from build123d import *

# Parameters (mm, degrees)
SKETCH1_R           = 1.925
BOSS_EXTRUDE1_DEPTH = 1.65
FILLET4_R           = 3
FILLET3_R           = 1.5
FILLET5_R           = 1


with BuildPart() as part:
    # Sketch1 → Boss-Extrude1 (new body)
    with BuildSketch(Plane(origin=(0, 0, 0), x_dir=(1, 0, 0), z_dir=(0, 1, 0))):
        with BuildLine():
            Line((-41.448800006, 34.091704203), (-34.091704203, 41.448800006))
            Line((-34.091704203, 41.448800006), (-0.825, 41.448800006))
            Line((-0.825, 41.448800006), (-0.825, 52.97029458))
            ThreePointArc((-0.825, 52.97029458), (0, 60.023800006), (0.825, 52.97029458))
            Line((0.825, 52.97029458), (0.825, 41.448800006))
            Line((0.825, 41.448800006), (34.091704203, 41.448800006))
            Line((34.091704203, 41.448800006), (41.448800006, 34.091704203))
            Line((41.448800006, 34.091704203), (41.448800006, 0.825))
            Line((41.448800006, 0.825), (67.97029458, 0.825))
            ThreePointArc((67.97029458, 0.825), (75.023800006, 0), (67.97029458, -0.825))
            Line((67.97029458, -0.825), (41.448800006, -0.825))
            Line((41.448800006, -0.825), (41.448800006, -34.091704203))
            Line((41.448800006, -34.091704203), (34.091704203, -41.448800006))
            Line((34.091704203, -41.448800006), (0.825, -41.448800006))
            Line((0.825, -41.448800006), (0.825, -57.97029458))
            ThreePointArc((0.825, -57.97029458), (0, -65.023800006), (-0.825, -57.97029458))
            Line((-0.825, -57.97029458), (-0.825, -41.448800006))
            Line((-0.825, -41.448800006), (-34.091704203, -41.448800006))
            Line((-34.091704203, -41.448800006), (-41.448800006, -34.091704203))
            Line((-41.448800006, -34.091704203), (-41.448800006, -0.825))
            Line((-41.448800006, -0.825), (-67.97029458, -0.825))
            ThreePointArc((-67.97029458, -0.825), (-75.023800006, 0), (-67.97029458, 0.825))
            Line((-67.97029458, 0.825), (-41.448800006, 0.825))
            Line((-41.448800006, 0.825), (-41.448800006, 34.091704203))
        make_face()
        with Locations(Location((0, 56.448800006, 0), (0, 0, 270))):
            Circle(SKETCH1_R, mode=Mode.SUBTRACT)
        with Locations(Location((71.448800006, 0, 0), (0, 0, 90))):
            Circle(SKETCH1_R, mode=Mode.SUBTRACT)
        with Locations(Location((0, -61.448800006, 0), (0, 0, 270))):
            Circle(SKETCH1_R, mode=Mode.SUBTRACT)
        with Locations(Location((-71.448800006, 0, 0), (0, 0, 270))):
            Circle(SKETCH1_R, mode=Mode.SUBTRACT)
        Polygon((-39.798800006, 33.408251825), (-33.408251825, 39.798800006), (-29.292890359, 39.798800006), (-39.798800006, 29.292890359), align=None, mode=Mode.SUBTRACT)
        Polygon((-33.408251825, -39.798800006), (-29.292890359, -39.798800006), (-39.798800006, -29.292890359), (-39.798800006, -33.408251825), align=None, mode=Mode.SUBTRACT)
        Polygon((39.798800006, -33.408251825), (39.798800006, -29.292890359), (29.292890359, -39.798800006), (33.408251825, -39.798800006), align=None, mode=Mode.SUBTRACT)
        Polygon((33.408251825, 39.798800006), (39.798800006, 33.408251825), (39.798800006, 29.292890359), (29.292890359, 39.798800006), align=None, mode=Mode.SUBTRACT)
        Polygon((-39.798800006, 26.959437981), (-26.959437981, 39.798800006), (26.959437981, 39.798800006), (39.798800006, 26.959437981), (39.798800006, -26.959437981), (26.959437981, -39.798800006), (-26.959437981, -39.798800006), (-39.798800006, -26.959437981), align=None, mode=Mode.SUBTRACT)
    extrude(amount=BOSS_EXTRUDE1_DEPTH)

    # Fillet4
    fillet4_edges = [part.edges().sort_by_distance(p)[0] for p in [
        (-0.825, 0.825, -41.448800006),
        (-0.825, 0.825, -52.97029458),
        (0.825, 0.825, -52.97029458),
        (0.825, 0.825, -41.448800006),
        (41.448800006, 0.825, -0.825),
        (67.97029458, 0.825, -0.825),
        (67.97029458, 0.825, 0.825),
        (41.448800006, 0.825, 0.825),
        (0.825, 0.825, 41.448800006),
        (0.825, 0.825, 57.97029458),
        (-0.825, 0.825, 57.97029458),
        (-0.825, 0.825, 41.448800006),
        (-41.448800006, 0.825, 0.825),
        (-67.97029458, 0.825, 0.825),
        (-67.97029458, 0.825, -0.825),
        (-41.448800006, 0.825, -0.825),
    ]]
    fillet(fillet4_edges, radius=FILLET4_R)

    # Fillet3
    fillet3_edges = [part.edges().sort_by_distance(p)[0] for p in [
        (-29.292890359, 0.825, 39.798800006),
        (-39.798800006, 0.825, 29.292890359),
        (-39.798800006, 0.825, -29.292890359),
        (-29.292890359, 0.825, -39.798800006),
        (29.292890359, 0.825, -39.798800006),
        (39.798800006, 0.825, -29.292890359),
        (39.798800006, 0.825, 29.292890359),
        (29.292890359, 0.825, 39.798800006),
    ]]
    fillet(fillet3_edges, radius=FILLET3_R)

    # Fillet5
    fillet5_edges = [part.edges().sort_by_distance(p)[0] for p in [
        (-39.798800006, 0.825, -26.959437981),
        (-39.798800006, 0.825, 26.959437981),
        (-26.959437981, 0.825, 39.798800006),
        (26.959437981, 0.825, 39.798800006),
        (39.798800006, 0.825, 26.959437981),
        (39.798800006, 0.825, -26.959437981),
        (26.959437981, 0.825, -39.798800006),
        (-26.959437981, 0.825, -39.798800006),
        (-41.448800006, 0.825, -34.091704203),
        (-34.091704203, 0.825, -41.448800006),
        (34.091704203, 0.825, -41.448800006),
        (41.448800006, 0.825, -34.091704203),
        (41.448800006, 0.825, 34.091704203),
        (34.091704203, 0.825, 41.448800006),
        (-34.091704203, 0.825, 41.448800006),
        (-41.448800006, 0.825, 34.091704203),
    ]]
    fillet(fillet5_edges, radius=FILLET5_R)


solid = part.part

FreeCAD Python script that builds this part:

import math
import FreeCAD as App
import Part
import Sketcher


def edges_at(feature, points):
    """Names of the edges that pass closest to the given points."""
    edges = feature.Shape.Edges
    near = lambda p: min(range(len(edges)), key=lambda i: edges[i].distToShape(Part.Vertex(*p))[0])
    return sorted({f"Edge{near(p) + 1}" for p in points})

doc = App.newDocument("Part")
params = doc.addObject("Spreadsheet::Sheet", "Params")
for row, (alias, value) in enumerate([
    ("sketch1_diameter", "3.85 mm"),
    ("pad1_length", "1.65 mm"),
    ("fillet_radius", "3 mm"),
    ("fillet2_radius", "1.5 mm"),
    ("fillet3_radius", "1 mm"),
], start=1):
    params.set(f"A{row}", alias)
    params.set(f"B{row}", "=" + value)
    params.setAlias(f"B{row}", alias)

body = doc.addObject("PartDesign::Body", "Body")

# Sketch on XZ plane
sketch1 = body.newObject("Sketcher::SketchObject", "Sketch")
sketch1.AttachmentSupport = (doc.getObject("XZ_Plane"), [""])
sketch1.MapMode = "FlatFace"
sketch1.addGeometry(Part.LineSegment(App.Vector(-34.091704, -41.4488, 0), App.Vector(-41.4488, -34.091704, 0)), False)
sketch1.addGeometry(Part.LineSegment(App.Vector(-41.4488, -34.091704, 0), App.Vector(-41.4488, -0.825, 0)), False)
sketch1.addGeometry(Part.LineSegment(App.Vector(-41.4488, -0.825, 0), App.Vector(-67.970295, -0.825, 0)), False)
sketch1.addGeometry(Part.ArcOfCircle(Part.Circle(App.Vector(-71.4488, 0, 0), App.Vector(0, 0, 1), 3.575), math.radians(13.342364), math.radians(346.657636)), False)
sketch1.addGeometry(Part.LineSegment(App.Vector(-67.970295, 0.825, 0), App.Vector(-41.4488, 0.825, 0)), False)
sketch1.addGeometry(Part.LineSegment(App.Vector(-41.4488, 0.825, 0), App.Vector(-41.4488, 34.091704, 0)), False)
sketch1.addGeometry(Part.LineSegment(App.Vector(-41.4488, 34.091704, 0), App.Vector(-34.091704, 41.4488, 0)), False)
sketch1.addGeometry(Part.LineSegment(App.Vector(-34.091704, 41.4488, 0), App.Vector(-0.825, 41.4488, 0)), False)
sketch1.addGeometry(Part.LineSegment(App.Vector(-0.825, 41.4488, 0), App.Vector(-0.825, 57.970295, 0)), False)
sketch1.addGeometry(Part.ArcOfCircle(Part.Circle(App.Vector(0, 61.4488, 0), App.Vector(0, 0, 1), 3.575), math.radians(-76.657636), math.radians(256.657636)), False)
sketch1.addGeometry(Part.LineSegment(App.Vector(0.825, 57.970295, 0), App.Vector(0.825, 41.4488, 0)), False)
sketch1.addGeometry(Part.LineSegment(App.Vector(0.825, 41.4488, 0), App.Vector(34.091704, 41.4488, 0)), False)
sketch1.addGeometry(Part.LineSegment(App.Vector(34.091704, 41.4488, 0), App.Vector(41.4488, 34.091704, 0)), False)
sketch1.addGeometry(Part.LineSegment(App.Vector(41.4488, 34.091704, 0), App.Vector(41.4488, 0.825, 0)), False)
sketch1.addGeometry(Part.LineSegment(App.Vector(41.4488, 0.825, 0), App.Vector(67.970295, 0.825, 0)), False)
sketch1.addGeometry(Part.ArcOfCircle(Part.Circle(App.Vector(71.4488, 0, 0), App.Vector(0, 0, 1), 3.575), math.radians(-166.657636), math.radians(166.657636)), False)
sketch1.addGeometry(Part.LineSegment(App.Vector(67.970295, -0.825, 0), App.Vector(41.4488, -0.825, 0)), False)
sketch1.addGeometry(Part.LineSegment(App.Vector(41.4488, -0.825, 0), App.Vector(41.4488, -34.091704, 0)), False)
sketch1.addGeometry(Part.LineSegment(App.Vector(41.4488, -34.091704, 0), App.Vector(34.091704, -41.4488, 0)), False)
sketch1.addGeometry(Part.LineSegment(App.Vector(34.091704, -41.4488, 0), App.Vector(0.825, -41.4488, 0)), False)
sketch1.addGeometry(Part.LineSegment(App.Vector(0.825, -41.4488, 0), App.Vector(0.825, -52.970295, 0)), False)
sketch1.addGeometry(Part.ArcOfCircle(Part.Circle(App.Vector(0, -56.4488, 0), App.Vector(0, 0, 1), 3.575), math.radians(103.342364), math.radians(436.657636)), False)
sketch1.addGeometry(Part.LineSegment(App.Vector(-0.825, -52.970295, 0), App.Vector(-0.825, -41.4488, 0)), False)
sketch1.addGeometry(Part.LineSegment(App.Vector(-0.825, -41.4488, 0), App.Vector(-34.091704, -41.4488, 0)), False)
sketch1.addGeometry(Part.Circle(App.Vector(0, 61.4488, 0), App.Vector(0, 0, 1), 1.925), False)
sketch1.addGeometry(Part.LineSegment(App.Vector(39.7988, 33.408252, 0), App.Vector(33.408252, 39.7988, 0)), False)
sketch1.addGeometry(Part.LineSegment(App.Vector(33.408252, 39.7988, 0), App.Vector(29.29289, 39.7988, 0)), False)
sketch1.addGeometry(Part.LineSegment(App.Vector(29.29289, 39.7988, 0), App.Vector(39.7988, 29.29289, 0)), False)
sketch1.addGeometry(Part.LineSegment(App.Vector(39.7988, 29.29289, 0), App.Vector(39.7988, 33.408252, 0)), False)
sketch1.addGeometry(Part.LineSegment(App.Vector(-33.408252, 39.7988, 0), App.Vector(-39.7988, 33.408252, 0)), False)
sketch1.addGeometry(Part.LineSegment(App.Vector(-39.7988, 33.408252, 0), App.Vector(-39.7988, 29.29289, 0)), False)
sketch1.addGeometry(Part.LineSegment(App.Vector(-39.7988, 29.29289, 0), App.Vector(-29.29289, 39.7988, 0)), False)
sketch1.addGeometry(Part.LineSegment(App.Vector(-29.29289, 39.7988, 0), App.Vector(-33.408252, 39.7988, 0)), False)
sketch1.addGeometry(Part.Circle(App.Vector(71.4488, 0, 0), App.Vector(0, 0, 1), 1.925), False)
sketch1.addGeometry(Part.LineSegment(App.Vector(-39.7988, -26.959438, 0), App.Vector(-26.959438, -39.7988, 0)), False)
sketch1.addGeometry(Part.LineSegment(App.Vector(-26.959438, -39.7988, 0), App.Vector(26.959438, -39.7988, 0)), False)
sketch1.addGeometry(Part.LineSegment(App.Vector(26.959438, -39.7988, 0), App.Vector(39.7988, -26.959438, 0)), False)
sketch1.addGeometry(Part.LineSegment(App.Vector(39.7988, -26.959438, 0), App.Vector(39.7988, 26.959438, 0)), False)
sketch1.addGeometry(Part.LineSegment(App.Vector(39.7988, 26.959438, 0), App.Vector(26.959438, 39.7988, 0)), False)
sketch1.addGeometry(Part.LineSegment(App.Vector(26.959438, 39.7988, 0), App.Vector(-26.959438, 39.7988, 0)), False)
sketch1.addGeometry(Part.LineSegment(App.Vector(-26.959438, 39.7988, 0), App.Vector(-39.7988, 26.959438, 0)), False)
sketch1.addGeometry(Part.LineSegment(App.Vector(-39.7988, 26.959438, 0), App.Vector(-39.7988, -26.959438, 0)), False)
sketch1.addGeometry(Part.LineSegment(App.Vector(33.408252, -39.7988, 0), App.Vector(39.7988, -33.408252, 0)), False)
sketch1.addGeometry(Part.LineSegment(App.Vector(39.7988, -33.408252, 0), App.Vector(39.7988, -29.29289, 0)), False)
sketch1.addGeometry(Part.LineSegment(App.Vector(39.7988, -29.29289, 0), App.Vector(29.29289, -39.7988, 0)), False)
sketch1.addGeometry(Part.LineSegment(App.Vector(29.29289, -39.7988, 0), App.Vector(33.408252, -39.7988, 0)), False)
sketch1.addGeometry(Part.Circle(App.Vector(0, -56.4488, 0), App.Vector(0, 0, 1), 1.925), False)
sketch1.addGeometry(Part.Circle(App.Vector(-71.4488, 0, 0), App.Vector(0, 0, 1), 1.925), False)
sketch1.addGeometry(Part.LineSegment(App.Vector(-39.7988, -33.408252, 0), App.Vector(-33.408252, -39.7988, 0)), False)
sketch1.addGeometry(Part.LineSegment(App.Vector(-33.408252, -39.7988, 0), App.Vector(-29.29289, -39.7988, 0)), False)
sketch1.addGeometry(Part.LineSegment(App.Vector(-29.29289, -39.7988, 0), App.Vector(-39.7988, -29.29289, 0)), False)
sketch1.addGeometry(Part.LineSegment(App.Vector(-39.7988, -29.29289, 0), App.Vector(-39.7988, -33.408252, 0)), False)
sketch1.addConstraint(Sketcher.Constraint("Coincident", 0, 2, 1, 1))
sketch1.addConstraint(Sketcher.Constraint("Coincident", 1, 2, 2, 1))
sketch1.addConstraint(Sketcher.Constraint("Coincident", 2, 2, 3, 2))
sketch1.addConstraint(Sketcher.Constraint("Coincident", 3, 1, 4, 1))
sketch1.addConstraint(Sketcher.Constraint("Coincident", 4, 2, 5, 1))
sketch1.addConstraint(Sketcher.Constraint("Coincident", 5, 2, 6, 1))
sketch1.addConstraint(Sketcher.Constraint("Coincident", 6, 2, 7, 1))
sketch1.addConstraint(Sketcher.Constraint("Coincident", 7, 2, 8, 1))
sketch1.addConstraint(Sketcher.Constraint("Coincident", 8, 2, 9, 2))
sketch1.addConstraint(Sketcher.Constraint("Coincident", 9, 1, 10, 1))
sketch1.addConstraint(Sketcher.Constraint("Coincident", 10, 2, 11, 1))
sketch1.addConstraint(Sketcher.Constraint("Coincident", 11, 2, 12, 1))
sketch1.addConstraint(Sketcher.Constraint("Coincident", 12, 2, 13, 1))
sketch1.addConstraint(Sketcher.Constraint("Coincident", 13, 2, 14, 1))
sketch1.addConstraint(Sketcher.Constraint("Coincident", 14, 2, 15, 2))
sketch1.addConstraint(Sketcher.Constraint("Coincident", 15, 1, 16, 1))
sketch1.addConstraint(Sketcher.Constraint("Coincident", 16, 2, 17, 1))
sketch1.addConstraint(Sketcher.Constraint("Coincident", 17, 2, 18, 1))
sketch1.addConstraint(Sketcher.Constraint("Coincident", 18, 2, 19, 1))
sketch1.addConstraint(Sketcher.Constraint("Coincident", 19, 2, 20, 1))
sketch1.addConstraint(Sketcher.Constraint("Coincident", 20, 2, 21, 2))
sketch1.addConstraint(Sketcher.Constraint("Coincident", 21, 1, 22, 1))
sketch1.addConstraint(Sketcher.Constraint("Coincident", 22, 2, 23, 1))
sketch1.addConstraint(Sketcher.Constraint("Coincident", 23, 2, 0, 1))
sketch1.addConstraint(Sketcher.Constraint("Coincident", 25, 2, 26, 1))
sketch1.addConstraint(Sketcher.Constraint("Coincident", 26, 2, 27, 1))
sketch1.addConstraint(Sketcher.Constraint("Coincident", 27, 2, 28, 1))
sketch1.addConstraint(Sketcher.Constraint("Coincident", 28, 2, 25, 1))
sketch1.addConstraint(Sketcher.Constraint("Coincident", 29, 2, 30, 1))
sketch1.addConstraint(Sketcher.Constraint("Coincident", 30, 2, 31, 1))
sketch1.addConstraint(Sketcher.Constraint("Coincident", 31, 2, 32, 1))
sketch1.addConstraint(Sketcher.Constraint("Coincident", 32, 2, 29, 1))
sketch1.addConstraint(Sketcher.Constraint("Coincident", 34, 2, 35, 1))
sketch1.addConstraint(Sketcher.Constraint("Coincident", 35, 2, 36, 1))
sketch1.addConstraint(Sketcher.Constraint("Coincident", 36, 2, 37, 1))
sketch1.addConstraint(Sketcher.Constraint("Coincident", 37, 2, 38, 1))
sketch1.addConstraint(Sketcher.Constraint("Coincident", 38, 2, 39, 1))
sketch1.addConstraint(Sketcher.Constraint("Coincident", 39, 2, 40, 1))
sketch1.addConstraint(Sketcher.Constraint("Coincident", 40, 2, 41, 1))
sketch1.addConstraint(Sketcher.Constraint("Coincident", 41, 2, 34, 1))
sketch1.addConstraint(Sketcher.Constraint("Coincident", 42, 2, 43, 1))
sketch1.addConstraint(Sketcher.Constraint("Coincident", 43, 2, 44, 1))
sketch1.addConstraint(Sketcher.Constraint("Coincident", 44, 2, 45, 1))
sketch1.addConstraint(Sketcher.Constraint("Coincident", 45, 2, 42, 1))
sketch1.addConstraint(Sketcher.Constraint("Coincident", 48, 2, 49, 1))
sketch1.addConstraint(Sketcher.Constraint("Coincident", 49, 2, 50, 1))
sketch1.addConstraint(Sketcher.Constraint("Coincident", 50, 2, 51, 1))
sketch1.addConstraint(Sketcher.Constraint("Coincident", 51, 2, 48, 1))
sketch1.addConstraint(Sketcher.Constraint("Vertical", 1))
sketch1.addConstraint(Sketcher.Constraint("Horizontal", 2))
sketch1.addConstraint(Sketcher.Constraint("Horizontal", 4))
sketch1.addConstraint(Sketcher.Constraint("Vertical", 5))
sketch1.addConstraint(Sketcher.Constraint("Horizontal", 7))
sketch1.addConstraint(Sketcher.Constraint("Vertical", 8))
sketch1.addConstraint(Sketcher.Constraint("Vertical", 10))
sketch1.addConstraint(Sketcher.Constraint("Horizontal", 11))
sketch1.addConstraint(Sketcher.Constraint("Vertical", 13))
sketch1.addConstraint(Sketcher.Constraint("Horizontal", 14))
sketch1.addConstraint(Sketcher.Constraint("Horizontal", 16))
sketch1.addConstraint(Sketcher.Constraint("Vertical", 17))
sketch1.addConstraint(Sketcher.Constraint("Horizontal", 19))
sketch1.addConstraint(Sketcher.Constraint("Vertical", 20))
sketch1.addConstraint(Sketcher.Constraint("Vertical", 22))
sketch1.addConstraint(Sketcher.Constraint("Horizontal", 23))
sketch1.addConstraint(Sketcher.Constraint("Horizontal", 26))
sketch1.addConstraint(Sketcher.Constraint("Vertical", 28))
sketch1.addConstraint(Sketcher.Constraint("Vertical", 30))
sketch1.addConstraint(Sketcher.Constraint("Horizontal", 32))
sketch1.addConstraint(Sketcher.Constraint("Horizontal", 35))
sketch1.addConstraint(Sketcher.Constraint("Vertical", 37))
sketch1.addConstraint(Sketcher.Constraint("Horizontal", 39))
sketch1.addConstraint(Sketcher.Constraint("Vertical", 41))
sketch1.addConstraint(Sketcher.Constraint("Vertical", 43))
sketch1.addConstraint(Sketcher.Constraint("Horizontal", 45))
sketch1.addConstraint(Sketcher.Constraint("Horizontal", 49))
sketch1.addConstraint(Sketcher.Constraint("Vertical", 51))
sketch1.addConstraint(Sketcher.Constraint("Coincident", 24, 3, 9, 3))
sketch1.addConstraint(Sketcher.Constraint("Coincident", 33, 3, 15, 3))
sketch1.addConstraint(Sketcher.Constraint("Coincident", 46, 3, 21, 3))
sketch1.addConstraint(Sketcher.Constraint("Coincident", 47, 3, 3, 3))
sketch1.addConstraint(Sketcher.Constraint("Equal", 3, 9))
sketch1.addConstraint(Sketcher.Constraint("Equal", 9, 15))
sketch1.addConstraint(Sketcher.Constraint("Equal", 15, 21))
sketch1.addConstraint(Sketcher.Constraint("Equal", 24, 33))
sketch1.addConstraint(Sketcher.Constraint("Equal", 33, 46))
sketch1.addConstraint(Sketcher.Constraint("Equal", 46, 47))
sketch1.addConstraint(Sketcher.Constraint("Symmetric", 3, 3, 15, 3, -1, 1))
sketch1.addConstraint(Sketcher.Constraint("Symmetric", 0, 2, 12, 2, -1, 1))
sketch1.addConstraint(Sketcher.Constraint("Symmetric", 4, 2, 16, 2, -1, 1))
sketch1.addConstraint(Sketcher.Constraint("Symmetric", 6, 2, 18, 2, -1, 1))
sketch1.addConstraint(Sketcher.Constraint("Symmetric", 10, 2, 22, 2, -1, 1))
sketch1.addConstraint(Sketcher.Constraint("Symmetric", 34, 2, 38, 2, -1, 1))
sketch1.addConstraint(Sketcher.Constraint("Symmetric", 36, 2, 40, 2, -1, 1))
sketch1.addConstraint(Sketcher.Constraint("Symmetric", 29, 2, 42, 2, -1, 1))
sketch1.addConstraint(Sketcher.Constraint("Symmetric", 31, 2, 44, 2, -1, 1))
sketch1.addConstraint(Sketcher.Constraint("Symmetric", 25, 2, 48, 2, -1, 1))
sketch1.addConstraint(Sketcher.Constraint("Symmetric", 27, 2, 50, 2, -1, 1))
sketch1.addConstraint(Sketcher.Constraint("Symmetric", 8, 2, 9, 1, -2))
sketch1.addConstraint(Sketcher.Constraint("Symmetric", 6, 2, 11, 2, -2))
sketch1.addConstraint(Sketcher.Constraint("Symmetric", 5, 2, 12, 2, -2))
sketch1.addConstraint(Sketcher.Constraint("Symmetric", 3, 1, 14, 2, -2))
sketch1.addConstraint(Sketcher.Constraint("Symmetric", 20, 2, 21, 1, -2))
sketch1.addConstraint(Sketcher.Constraint("Symmetric", 28, 2, 29, 2, -2))
sketch1.addConstraint(Sketcher.Constraint("Symmetric", 26, 2, 31, 2, -2))
sketch1.addConstraint(Sketcher.Constraint("Perpendicular", 0, 6))
sketch1.addConstraint(Sketcher.Constraint("Perpendicular", 6, 12))
sketch1.addConstraint(Sketcher.Constraint("Perpendicular", 12, 18))
sketch1.addConstraint(Sketcher.Constraint("Perpendicular", 18, 25))
sketch1.addConstraint(Sketcher.Constraint("Parallel", 25, 27))
sketch1.addConstraint(Sketcher.Constraint("Perpendicular", 27, 29))
sketch1.addConstraint(Sketcher.Constraint("Parallel", 29, 31))
sketch1.addConstraint(Sketcher.Constraint("Perpendicular", 31, 34))
sketch1.addConstraint(Sketcher.Constraint("Perpendicular", 34, 36))
sketch1.addConstraint(Sketcher.Constraint("Perpendicular", 36, 38))
sketch1.addConstraint(Sketcher.Constraint("Perpendicular", 38, 40))
sketch1.addConstraint(Sketcher.Constraint("Parallel", 40, 42))
sketch1.addConstraint(Sketcher.Constraint("Parallel", 42, 44))
sketch1.addConstraint(Sketcher.Constraint("Perpendicular", 44, 48))
sketch1.addConstraint(Sketcher.Constraint("Parallel", 48, 50))
sketch1.addConstraint(Sketcher.Constraint("Horizontal", 2, 2, 15, 1))
sketch1.addConstraint(Sketcher.Constraint("Horizontal", 32, 2, 38, 2))
sketch1.addConstraint(Sketcher.Constraint("Horizontal", 37, 2, 40, 2))
sketch1.addConstraint(Sketcher.Constraint("Vertical", 28, 2, 36, 2))
sketch1.addConstraint(Sketcher.Constraint("Equal", 23, 1))
sketch1.addConstraint(Sketcher.Constraint("Equal", 39, 37))
sketch1.addConstraint(Sketcher.Constraint("Diameter", 24, 3.85))
sketch1.addConstraint(Sketcher.Constraint("Radius", 3, 3.575))
sketch1.addConstraint(Sketcher.Constraint("DistanceX", 3, 3, 0, 2, 30.0))
sketch1.addConstraint(Sketcher.Constraint("DistanceY", 6, 2, 9, 3, 20.0))
sketch1.addConstraint(Sketcher.Constraint("DistanceY", 21, 3, 18, 2, 15.0))
sketch1.addConstraint(Sketcher.Constraint("DistanceY", 2, 2, 3, 1, 1.65))
sketch1.addConstraint(Sketcher.Constraint("DistanceX", 8, 2, 9, 1, 1.65))
sketch1.addConstraint(Sketcher.Constraint("DistanceY", 25, 2, 11, 2, 1.65))
sketch1.addConstraint(Sketcher.Constraint("Distance", 25, 9.0376))
sketch1.addConstraint(Sketcher.Constraint("Distance", 27, 14.8576))
sketch1.addConstraint(Sketcher.Constraint("Distance", 34, 18.1576))
sketch1.addConstraint(Sketcher.Constraint("DistanceX", 3, 3, -1, 1, 71.4488))
sketch1.addConstraint(Sketcher.Constraint("DistanceX", 7, 1, 7, 2, 33.266704))
sketch1.setExpression("Constraints[125]", "Params.sketch1_diameter")
pad1 = body.newObject("PartDesign::Pad", "Pad")
pad1.Profile = sketch1
pad1.setExpression("Length", "Params.pad1_length")
pad1.Reversed = True
doc.recompute()

fillet = body.newObject("PartDesign::Fillet", "Fillet")
fillet.Base = (pad1, edges_at(pad1, [
    (-0.825, 0.825, -41.449),
    (-0.825, 0.825, -52.97),
    (0.825, 0.825, -52.97),
    (0.825, 0.825, -41.449),
    (41.449, 0.825, -0.825),
    (67.97, 0.825, -0.825),
    (67.97, 0.825, 0.825),
    (41.449, 0.825, 0.825),
    (0.825, 0.825, 41.449),
    (0.825, 0.825, 57.97),
    (-0.825, 0.825, 57.97),
    (-0.825, 0.825, 41.449),
    (-41.449, 0.825, 0.825),
    (-67.97, 0.825, 0.825),
    (-67.97, 0.825, -0.825),
    (-41.449, 0.825, -0.825),
]))
fillet.setExpression("Radius", "Params.fillet_radius")
doc.recompute()

fillet2 = body.newObject("PartDesign::Fillet", "Fillet001")
fillet2.Base = (fillet, edges_at(fillet, [
    (-29.293, 0.825, 39.799),
    (-39.799, 0.825, 29.293),
    (-39.799, 0.825, -29.293),
    (-29.293, 0.825, -39.799),
    (29.293, 0.825, -39.799),
    (39.799, 0.825, -29.293),
    (39.799, 0.825, 29.293),
    (29.293, 0.825, 39.799),
]))
fillet2.setExpression("Radius", "Params.fillet2_radius")
doc.recompute()

fillet3 = body.newObject("PartDesign::Fillet", "Fillet002")
fillet3.Base = (fillet2, edges_at(fillet2, [
    (-39.799, 0.825, -26.959),
    (-39.799, 0.825, 26.959),
    (-26.959, 0.825, 39.799),
    (26.959, 0.825, 39.799),
    (39.799, 0.825, 26.959),
    (39.799, 0.825, -26.959),
    (26.959, 0.825, -39.799),
    (-26.959, 0.825, -39.799),
    (-41.449, 0.825, -34.092),
    (-34.092, 0.825, -41.449),
    (34.092, 0.825, -41.449),
    (41.449, 0.825, -34.092),
    (41.449, 0.825, 34.092),
    (34.092, 0.825, 41.449),
    (-34.092, 0.825, 41.449),
    (-41.449, 0.825, 34.092),
]))
fillet3.setExpression("Radius", "Params.fillet3_radius")

doc.recompute()
